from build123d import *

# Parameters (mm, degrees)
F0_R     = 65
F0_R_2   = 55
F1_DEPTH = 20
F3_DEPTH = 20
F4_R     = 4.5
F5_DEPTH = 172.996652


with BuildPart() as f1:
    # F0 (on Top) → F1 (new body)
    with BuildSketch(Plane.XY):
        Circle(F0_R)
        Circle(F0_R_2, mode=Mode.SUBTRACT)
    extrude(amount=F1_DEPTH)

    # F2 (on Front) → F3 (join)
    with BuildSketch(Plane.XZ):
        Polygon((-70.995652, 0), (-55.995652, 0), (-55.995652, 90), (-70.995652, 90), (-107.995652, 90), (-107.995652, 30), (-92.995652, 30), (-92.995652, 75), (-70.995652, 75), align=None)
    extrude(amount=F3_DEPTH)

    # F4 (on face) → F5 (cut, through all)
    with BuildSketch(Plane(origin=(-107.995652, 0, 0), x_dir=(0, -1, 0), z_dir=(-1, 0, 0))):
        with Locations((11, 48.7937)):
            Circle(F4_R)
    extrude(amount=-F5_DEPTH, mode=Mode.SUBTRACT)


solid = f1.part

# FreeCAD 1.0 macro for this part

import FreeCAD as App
import Part
import Sketcher

V = App.Vector
Q = App.Units.Quantity


def add_polygon(sketch, points):
    """Adds a closed chain of lines whose ends are joined by coincident constraints."""
    first, n = sketch.GeometryCount, len(points)
    for a, b in zip(points, points[1:] + points[:1]):
        sketch.addGeometry(Part.LineSegment(App.Vector(*a, 0), App.Vector(*b, 0)), False)
    for i in range(n):
        sketch.addConstraint(Sketcher.Constraint("Coincident", first + i, 2, first + (i + 1) % n, 1))

doc = App.newDocument("Part")
body = doc.addObject("PartDesign::Body", "Body")

# Sketch on XY plane
sketch1 = doc.addObject("Sketcher::SketchObject", "Sketch")
body.addObject(sketch1)
sketch1.AttachmentSupport = (doc.XY_Plane, [""])
sketch1.MapMode = "FlatFace"
sketch1.addGeometry([
    Part.Circle(V(0, 0, 0), V(0, 0, 1), 65),
    Part.Circle(V(0, 0, 0), V(0, 0, 1), 55),
], False)
sketch1.addConstraint([
    Sketcher.Constraint("Coincident", 0, 3, -1, 1),
    Sketcher.Constraint("Coincident", 1, 3, -1, 1),
    Sketcher.Constraint("Diameter", 0, Q("130 mm")),
    Sketcher.Constraint("Diameter", 1, Q("110 mm")),
])
pad1 = doc.addObject("PartDesign::Pad", "Pad")
body.addObject(pad1)
pad1.Profile = sketch1
pad1.Length = 20

# Sketch on XZ plane
sketch2 = doc.addObject("Sketcher::SketchObject", "Sketch001")
body.addObject(sketch2)
sketch2.AttachmentSupport = (doc.XZ_Plane, [""])
sketch2.MapMode = "FlatFace"
add_polygon(sketch2, [(-71, 0), (-56, 0), (-56, 90), (-108, 90), (-108, 30), (-93, 30), (-93, 75), (-71, 75)])  # lines 0-7
sketch2.addConstraint([
    Sketcher.Constraint("Horizontal", 0),
    Sketcher.Constraint("Vertical", 1),
    Sketcher.Constraint("Horizontal", 2),
    Sketcher.Constraint("Vertical", 3),
    Sketcher.Constraint("Horizontal", 4),
    Sketcher.Constraint("Vertical", 5),
    Sketcher.Constraint("Horizontal", 6),
    Sketcher.Constraint("Vertical", 7),
    Sketcher.Constraint("PointOnObject", 0, 2, -1),
    Sketcher.Constraint("Equal", 0, 4),
    Sketcher.Constraint("DistanceX", 0, 1, 0, 2, Q("15 mm")),
    Sketcher.Constraint("DistanceX", 2, 2, 2, 1, Q("52 mm")),
    Sketcher.Constraint("DistanceY", 1, 1, 1, 2, Q("90 mm")),
    Sketcher.Constraint("DistanceY", 3, 2, 3, 1, Q("60 mm")),
    Sketcher.Constraint("DistanceY", 5, 1, 5, 2, Q("45 mm")),
    Sketcher.Constraint("DistanceX", 0, 2, -1, 1, Q("55.995652 mm")),
])
pad2 = doc.addObject("PartDesign::Pad", "Pad001")
body.addObject(pad2)
pad2.Profile = sketch2
pad2.Length = 20

# Sketch on YZ plane
sketch3 = doc.addObject("Sketcher::SketchObject", "Sketch002")
body.addObject(sketch3)
sketch3.AttachmentSupport = (doc.YZ_Plane, [""])
sketch3.MapMode = "FlatFace"
sketch3.AttachmentOffset = App.Placement(V(0, 0, -107.995652), App.Rotation())
sketch3.addGeometry(Part.Circle(V(-11, 48.8, 0), V(0, 0, 1), 4.5), False)
sketch3.addConstraint([
    Sketcher.Constraint("Diameter", 0, Q("9 mm")),
    Sketcher.Constraint("DistanceX", 0, 3, -1, 1, Q("11 mm")),
    Sketcher.Constraint("DistanceY", -1, 1, 0, 3, Q("48.7937 mm")),
])
pocket1 = doc.addObject("PartDesign::Pocket", "Pocket")
body.addObject(pocket1)
pocket1.Profile = sketch3
pocket1.Type = "ThroughAll"
pocket1.Reversed = True

doc.recompute()
